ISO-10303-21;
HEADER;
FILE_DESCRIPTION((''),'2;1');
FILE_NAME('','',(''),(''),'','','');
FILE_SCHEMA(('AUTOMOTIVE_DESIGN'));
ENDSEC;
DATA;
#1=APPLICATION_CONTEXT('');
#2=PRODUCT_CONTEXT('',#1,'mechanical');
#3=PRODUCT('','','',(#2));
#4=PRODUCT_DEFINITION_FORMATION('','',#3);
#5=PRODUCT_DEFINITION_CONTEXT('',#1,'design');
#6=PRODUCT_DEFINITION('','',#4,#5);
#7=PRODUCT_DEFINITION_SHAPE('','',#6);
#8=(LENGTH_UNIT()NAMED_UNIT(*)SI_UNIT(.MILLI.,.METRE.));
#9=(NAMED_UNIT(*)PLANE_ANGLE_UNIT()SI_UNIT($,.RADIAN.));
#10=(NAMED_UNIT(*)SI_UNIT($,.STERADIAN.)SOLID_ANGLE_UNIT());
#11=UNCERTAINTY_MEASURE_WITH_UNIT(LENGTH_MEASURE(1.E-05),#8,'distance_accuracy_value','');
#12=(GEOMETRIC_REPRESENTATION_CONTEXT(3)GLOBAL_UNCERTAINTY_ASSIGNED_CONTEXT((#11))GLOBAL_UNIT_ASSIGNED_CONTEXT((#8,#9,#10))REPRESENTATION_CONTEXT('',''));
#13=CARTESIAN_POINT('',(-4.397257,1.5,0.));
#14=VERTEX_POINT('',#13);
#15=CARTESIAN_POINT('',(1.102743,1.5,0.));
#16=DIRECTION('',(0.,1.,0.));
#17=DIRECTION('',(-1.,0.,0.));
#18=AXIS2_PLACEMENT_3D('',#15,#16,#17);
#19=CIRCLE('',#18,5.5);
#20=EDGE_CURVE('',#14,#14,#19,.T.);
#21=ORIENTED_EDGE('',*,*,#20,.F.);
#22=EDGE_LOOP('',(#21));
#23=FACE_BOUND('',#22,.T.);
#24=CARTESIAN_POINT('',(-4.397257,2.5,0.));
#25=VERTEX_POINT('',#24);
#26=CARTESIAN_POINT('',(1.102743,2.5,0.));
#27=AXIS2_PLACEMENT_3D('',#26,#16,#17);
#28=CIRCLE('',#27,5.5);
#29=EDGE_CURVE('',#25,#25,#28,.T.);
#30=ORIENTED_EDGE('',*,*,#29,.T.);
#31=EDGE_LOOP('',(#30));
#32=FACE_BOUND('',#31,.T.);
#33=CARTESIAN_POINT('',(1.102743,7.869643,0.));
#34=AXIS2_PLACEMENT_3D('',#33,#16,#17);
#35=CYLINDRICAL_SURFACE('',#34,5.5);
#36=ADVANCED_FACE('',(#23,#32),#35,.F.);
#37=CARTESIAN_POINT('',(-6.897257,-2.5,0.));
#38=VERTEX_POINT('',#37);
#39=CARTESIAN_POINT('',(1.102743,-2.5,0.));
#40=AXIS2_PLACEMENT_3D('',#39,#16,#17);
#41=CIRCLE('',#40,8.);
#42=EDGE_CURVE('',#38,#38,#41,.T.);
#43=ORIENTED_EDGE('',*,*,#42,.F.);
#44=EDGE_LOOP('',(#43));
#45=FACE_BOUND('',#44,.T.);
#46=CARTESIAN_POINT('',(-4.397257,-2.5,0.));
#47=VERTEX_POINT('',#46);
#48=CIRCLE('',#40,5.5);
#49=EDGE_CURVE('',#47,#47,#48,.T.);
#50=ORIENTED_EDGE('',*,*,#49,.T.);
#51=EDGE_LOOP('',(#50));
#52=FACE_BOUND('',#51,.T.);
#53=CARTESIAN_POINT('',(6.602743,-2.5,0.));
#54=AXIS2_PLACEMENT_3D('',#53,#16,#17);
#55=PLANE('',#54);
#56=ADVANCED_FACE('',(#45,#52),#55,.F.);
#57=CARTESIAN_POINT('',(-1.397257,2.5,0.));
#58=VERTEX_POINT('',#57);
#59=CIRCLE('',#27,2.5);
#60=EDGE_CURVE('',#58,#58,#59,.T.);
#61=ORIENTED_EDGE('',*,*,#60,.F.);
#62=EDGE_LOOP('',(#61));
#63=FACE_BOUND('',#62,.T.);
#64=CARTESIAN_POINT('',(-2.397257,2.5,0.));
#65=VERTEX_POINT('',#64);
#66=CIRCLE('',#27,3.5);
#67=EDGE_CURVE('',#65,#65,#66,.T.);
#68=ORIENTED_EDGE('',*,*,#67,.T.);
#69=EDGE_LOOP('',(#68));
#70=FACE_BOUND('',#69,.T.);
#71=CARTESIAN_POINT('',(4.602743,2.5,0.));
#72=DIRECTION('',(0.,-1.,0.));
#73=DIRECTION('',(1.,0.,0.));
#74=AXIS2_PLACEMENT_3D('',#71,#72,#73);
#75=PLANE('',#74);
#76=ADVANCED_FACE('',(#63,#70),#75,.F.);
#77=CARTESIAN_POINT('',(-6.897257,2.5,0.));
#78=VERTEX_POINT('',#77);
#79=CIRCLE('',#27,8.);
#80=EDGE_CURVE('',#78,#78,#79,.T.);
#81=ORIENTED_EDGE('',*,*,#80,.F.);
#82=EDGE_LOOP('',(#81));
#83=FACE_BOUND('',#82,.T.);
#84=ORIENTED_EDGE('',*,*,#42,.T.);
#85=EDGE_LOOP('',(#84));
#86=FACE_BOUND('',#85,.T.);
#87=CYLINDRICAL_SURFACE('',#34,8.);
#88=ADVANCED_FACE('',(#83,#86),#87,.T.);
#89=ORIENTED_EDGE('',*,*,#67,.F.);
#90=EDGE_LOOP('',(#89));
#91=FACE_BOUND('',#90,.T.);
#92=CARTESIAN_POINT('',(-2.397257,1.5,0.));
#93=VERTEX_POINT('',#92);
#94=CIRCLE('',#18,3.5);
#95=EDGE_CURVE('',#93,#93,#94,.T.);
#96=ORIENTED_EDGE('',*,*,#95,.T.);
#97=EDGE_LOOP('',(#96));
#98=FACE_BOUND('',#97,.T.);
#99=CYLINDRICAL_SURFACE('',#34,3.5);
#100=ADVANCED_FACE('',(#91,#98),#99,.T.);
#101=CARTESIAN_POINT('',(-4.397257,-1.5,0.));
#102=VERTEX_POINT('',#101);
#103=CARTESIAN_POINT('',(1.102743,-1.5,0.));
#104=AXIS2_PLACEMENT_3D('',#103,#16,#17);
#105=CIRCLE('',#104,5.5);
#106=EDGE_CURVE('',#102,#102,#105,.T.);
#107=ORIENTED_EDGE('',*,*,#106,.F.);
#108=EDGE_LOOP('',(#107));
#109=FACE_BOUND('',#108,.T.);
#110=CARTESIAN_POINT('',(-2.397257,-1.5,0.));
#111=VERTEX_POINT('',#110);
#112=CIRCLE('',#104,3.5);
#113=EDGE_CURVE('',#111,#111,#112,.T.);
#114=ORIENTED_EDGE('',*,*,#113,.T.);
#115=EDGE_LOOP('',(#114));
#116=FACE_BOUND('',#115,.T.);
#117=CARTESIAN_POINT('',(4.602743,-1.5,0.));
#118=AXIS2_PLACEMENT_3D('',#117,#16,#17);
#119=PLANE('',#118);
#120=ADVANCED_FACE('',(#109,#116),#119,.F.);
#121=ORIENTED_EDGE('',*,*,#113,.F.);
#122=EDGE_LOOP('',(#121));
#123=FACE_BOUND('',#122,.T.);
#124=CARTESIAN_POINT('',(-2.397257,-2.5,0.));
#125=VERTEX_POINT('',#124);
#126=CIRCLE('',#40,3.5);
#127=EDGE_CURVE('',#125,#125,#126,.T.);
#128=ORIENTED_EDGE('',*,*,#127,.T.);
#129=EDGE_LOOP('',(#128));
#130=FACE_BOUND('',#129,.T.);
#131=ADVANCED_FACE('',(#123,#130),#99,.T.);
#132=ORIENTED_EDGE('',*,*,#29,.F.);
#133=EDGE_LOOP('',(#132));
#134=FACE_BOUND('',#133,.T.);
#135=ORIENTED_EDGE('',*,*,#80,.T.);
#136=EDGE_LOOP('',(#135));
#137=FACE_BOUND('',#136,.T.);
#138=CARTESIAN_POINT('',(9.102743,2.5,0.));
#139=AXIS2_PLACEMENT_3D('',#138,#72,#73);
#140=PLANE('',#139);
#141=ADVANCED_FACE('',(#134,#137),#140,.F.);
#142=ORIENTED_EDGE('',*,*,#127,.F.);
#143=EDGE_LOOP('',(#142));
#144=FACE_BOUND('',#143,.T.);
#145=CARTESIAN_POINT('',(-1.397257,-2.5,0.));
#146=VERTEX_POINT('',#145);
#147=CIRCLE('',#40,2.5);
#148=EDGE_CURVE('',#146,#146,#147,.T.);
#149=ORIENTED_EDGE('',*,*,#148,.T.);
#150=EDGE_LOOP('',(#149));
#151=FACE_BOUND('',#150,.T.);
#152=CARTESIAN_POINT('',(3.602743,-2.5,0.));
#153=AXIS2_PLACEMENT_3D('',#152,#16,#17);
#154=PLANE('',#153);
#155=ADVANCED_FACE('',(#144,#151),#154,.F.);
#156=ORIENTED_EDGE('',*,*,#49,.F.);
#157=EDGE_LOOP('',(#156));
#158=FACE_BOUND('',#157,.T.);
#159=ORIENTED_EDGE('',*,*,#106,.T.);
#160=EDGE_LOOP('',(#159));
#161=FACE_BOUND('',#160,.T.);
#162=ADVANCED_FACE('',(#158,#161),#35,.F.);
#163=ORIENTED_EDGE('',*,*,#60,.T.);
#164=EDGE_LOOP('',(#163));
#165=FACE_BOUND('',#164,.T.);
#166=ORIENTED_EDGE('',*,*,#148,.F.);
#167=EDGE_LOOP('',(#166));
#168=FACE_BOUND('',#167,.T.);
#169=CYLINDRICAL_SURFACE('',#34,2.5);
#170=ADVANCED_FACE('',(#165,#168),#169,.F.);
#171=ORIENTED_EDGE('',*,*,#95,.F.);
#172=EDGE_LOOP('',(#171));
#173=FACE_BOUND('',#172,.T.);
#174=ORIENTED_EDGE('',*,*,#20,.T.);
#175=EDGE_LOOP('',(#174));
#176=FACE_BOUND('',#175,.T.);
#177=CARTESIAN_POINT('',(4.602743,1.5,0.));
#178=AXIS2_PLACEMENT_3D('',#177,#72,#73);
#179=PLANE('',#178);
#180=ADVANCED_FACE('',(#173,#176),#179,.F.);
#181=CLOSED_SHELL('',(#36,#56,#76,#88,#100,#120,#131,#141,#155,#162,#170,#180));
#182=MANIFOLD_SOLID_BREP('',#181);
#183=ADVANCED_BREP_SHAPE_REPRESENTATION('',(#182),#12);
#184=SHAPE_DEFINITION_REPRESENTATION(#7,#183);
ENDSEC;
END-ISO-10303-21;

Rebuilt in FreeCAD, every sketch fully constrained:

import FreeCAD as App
import Part
import Sketcher
Q = App.Units.Quantity


def add_polygon(sketch, points):
    """Adds a closed chain of lines whose ends are joined by coincident constraints."""
    first, n = sketch.GeometryCount, len(points)
    for a, b in zip(points, points[1:] + points[:1]):
        sketch.addGeometry(Part.LineSegment(App.Vector(*a, 0), App.Vector(*b, 0)), False)
    for i in range(n):
        sketch.addConstraint(Sketcher.Constraint("Coincident", first + i, 2, first + (i + 1) % n, 1))

doc = App.newDocument("Part")
body = doc.addObject("PartDesign::Body", "Body")

sketch1 = body.newObject("Sketcher::SketchObject", "Sketch")
sketch1.AttachmentSupport = (doc.getObject("XY_Plane"), [""])
sketch1.MapMode = "FlatFace"
add_polygon(sketch1, [(3.602743, -2.5), (4.602743, -2.5), (4.602743, -1.5), (6.602743, -1.5), (6.602743, -2.5), (9.102743, -2.5), (9.102743, 2.5), (6.602743, 2.5), (6.602743, 1.5), (4.602743, 1.5), (4.602743, 2.5), (3.602743, 2.5)])
sketch1.addGeometry(Part.LineSegment(App.Vector(1.102743, 2.5, 0), App.Vector(1.102743, -2.5, 0)), True)
sketch1.addConstraint(Sketcher.Constraint("Horizontal", 0))
sketch1.addConstraint(Sketcher.Constraint("Vertical", 1))
sketch1.addConstraint(Sketcher.Constraint("Horizontal", 2))
sketch1.addConstraint(Sketcher.Constraint("Vertical", 3))
sketch1.addConstraint(Sketcher.Constraint("Horizontal", 4))
sketch1.addConstraint(Sketcher.Constraint("Vertical", 5))
sketch1.addConstraint(Sketcher.Constraint("Horizontal", 6))
sketch1.addConstraint(Sketcher.Constraint("Vertical", 7))
sketch1.addConstraint(Sketcher.Constraint("Horizontal", 8))
sketch1.addConstraint(Sketcher.Constraint("Vertical", 9))
sketch1.addConstraint(Sketcher.Constraint("Horizontal", 10))
sketch1.addConstraint(Sketcher.Constraint("Vertical", 11))
sketch1.addConstraint(Sketcher.Constraint("Vertical", 12))
sketch1.addConstraint(Sketcher.Constraint("Symmetric", 3, 2, 6, 2, -1))
sketch1.addConstraint(Sketcher.Constraint("Symmetric", 1, 2, 8, 2, -1))
sketch1.addConstraint(Sketcher.Constraint("Horizontal", 0, 2, 3, 2))
sketch1.addConstraint(Sketcher.Constraint("Horizontal", 6, 2, 9, 2))
sketch1.addConstraint(Sketcher.Constraint("Horizontal", 10, 2, 12, 1))
sketch1.addConstraint(Sketcher.Constraint("Horizontal", 11, 2, 12, 2))
sketch1.addConstraint(Sketcher.Constraint("Equal", 10, 1))
sketch1.addConstraint(Sketcher.Constraint("DistanceX", 0, 1, 0, 2, Q("1 mm")))
sketch1.addConstraint(Sketcher.Constraint("DistanceX", 2, 1, 2, 2, Q("2 mm")))
sketch1.addConstraint(Sketcher.Constraint("DistanceY", 5, 1, 5, 2, Q("5 mm")))
sketch1.addConstraint(Sketcher.Constraint("DistanceX", 4, 1, 4, 2, Q("2.5 mm")))
sketch1.addConstraint(Sketcher.Constraint("DistanceX", 12, 1, 10, 2, Q("2.5 mm")))
sketch1.addConstraint(Sketcher.Constraint("DistanceX", -1, 1, 0, 2, Q("4.602743 mm")))
revolution = body.newObject("PartDesign::Revolution", "Revolution")
revolution.Profile = sketch1
revolution.ReferenceAxis = (sketch1, ["Axis0"])
revolution.Angle = 360

doc.recompute()
